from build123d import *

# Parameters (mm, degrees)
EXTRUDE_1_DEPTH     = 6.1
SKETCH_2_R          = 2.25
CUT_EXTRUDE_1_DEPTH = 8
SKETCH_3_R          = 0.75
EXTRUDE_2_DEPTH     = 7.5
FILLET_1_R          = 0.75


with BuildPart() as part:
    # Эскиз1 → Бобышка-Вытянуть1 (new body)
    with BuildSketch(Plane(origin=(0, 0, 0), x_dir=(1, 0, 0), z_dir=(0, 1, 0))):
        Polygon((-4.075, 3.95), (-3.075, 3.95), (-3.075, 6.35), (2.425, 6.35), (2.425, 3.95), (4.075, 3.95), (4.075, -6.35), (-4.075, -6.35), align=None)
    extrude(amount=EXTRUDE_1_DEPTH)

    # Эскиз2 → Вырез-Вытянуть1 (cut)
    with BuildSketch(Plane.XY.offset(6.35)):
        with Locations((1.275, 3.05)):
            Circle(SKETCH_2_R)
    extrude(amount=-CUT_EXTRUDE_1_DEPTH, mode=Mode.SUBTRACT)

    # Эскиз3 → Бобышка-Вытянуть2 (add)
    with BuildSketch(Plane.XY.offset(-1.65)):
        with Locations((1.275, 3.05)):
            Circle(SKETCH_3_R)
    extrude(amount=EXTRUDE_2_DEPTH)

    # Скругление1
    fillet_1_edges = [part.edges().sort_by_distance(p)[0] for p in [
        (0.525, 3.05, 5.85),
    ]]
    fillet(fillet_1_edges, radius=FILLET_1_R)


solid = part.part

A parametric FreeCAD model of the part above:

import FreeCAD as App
import Part
import Sketcher

V = App.Vector
Q = App.Units.Quantity


def edges_at(feature, points):
    """Names of the edges that pass closest to the given points."""
    edges = feature.Shape.Edges
    near = lambda p: min(range(len(edges)), key=lambda i: edges[i].distToShape(Part.Vertex(*p))[0])
    return sorted({f"Edge{near(p) + 1}" for p in points})

doc = App.newDocument("Part")
body = doc.addObject("PartDesign::Body", "Body")

# Sketch on XZ plane
sketch1 = body.newObject("Sketcher::SketchObject", "Sketch")
sketch1.AttachmentSupport = (doc.getObject("XZ_Plane"), [""])
sketch1.MapMode = "FlatFace"
sketch1.addGeometry(Part.LineSegment(V(-3.1, -4, 0), V(-4.1, -4, 0)), False)
sketch1.addGeometry(Part.LineSegment(V(-4.1, -4, 0), V(-4.1, 6.3, 0)), False)
sketch1.addGeometry(Part.LineSegment(V(-4.1, 6.3, 0), V(4.1, 6.3, 0)), False)
sketch1.addGeometry(Part.LineSegment(V(4.1, 6.3, 0), V(4.1, -4, 0)), False)
sketch1.addGeometry(Part.LineSegment(V(4.1, -4, 0), V(2.4, -4, 0)), False)
sketch1.addGeometry(Part.LineSegment(V(2.4, -4, 0), V(2.4, -6.3, 0)), False)
sketch1.addGeometry(Part.LineSegment(V(2.4, -6.3, 0), V(-3.1, -6.3, 0)), False)
sketch1.addGeometry(Part.LineSegment(V(-3.1, -6.3, 0), V(-3.1, -4, 0)), False)
sketch1.addConstraint(Sketcher.Constraint("Coincident", 0, 2, 1, 1))
sketch1.addConstraint(Sketcher.Constraint("Coincident", 1, 2, 2, 1))
sketch1.addConstraint(Sketcher.Constraint("Coincident", 2, 2, 3, 1))
sketch1.addConstraint(Sketcher.Constraint("Coincident", 3, 2, 4, 1))
sketch1.addConstraint(Sketcher.Constraint("Coincident", 4, 2, 5, 1))
sketch1.addConstraint(Sketcher.Constraint("Coincident", 5, 2, 6, 1))
sketch1.addConstraint(Sketcher.Constraint("Coincident", 6, 2, 7, 1))
sketch1.addConstraint(Sketcher.Constraint("Coincident", 7, 2, 0, 1))
sketch1.addConstraint(Sketcher.Constraint("Horizontal", 0))
sketch1.addConstraint(Sketcher.Constraint("Vertical", 1))
sketch1.addConstraint(Sketcher.Constraint("Horizontal", 2))
sketch1.addConstraint(Sketcher.Constraint("Vertical", 3))
sketch1.addConstraint(Sketcher.Constraint("Horizontal", 4))
sketch1.addConstraint(Sketcher.Constraint("Vertical", 5))
sketch1.addConstraint(Sketcher.Constraint("Horizontal", 6))
sketch1.addConstraint(Sketcher.Constraint("Vertical", 7))
sketch1.addConstraint(Sketcher.Constraint("Symmetric", 0, 2, 3, 2, -2))
sketch1.addConstraint(Sketcher.Constraint("DistanceX", 0, 2, 0, 1, Q("1 mm")))
sketch1.addConstraint(Sketcher.Constraint("DistanceX", 6, 2, 6, 1, Q("5.5 mm")))
sketch1.addConstraint(Sketcher.Constraint("DistanceY", 1, 1, 1, 2, Q("10.3 mm")))
sketch1.addConstraint(Sketcher.Constraint("DistanceY", 5, 2, 5, 1, Q("2.4 mm")))
sketch1.addConstraint(Sketcher.Constraint("DistanceX", 2, 1, 2, 2, Q("8.15 mm")))
sketch1.addConstraint(Sketcher.Constraint("DistanceY", 0, 2, -1, 1, Q("3.95 mm")))
pad1 = body.newObject("PartDesign::Pad", "Pad")
pad1.Profile = sketch1
pad1.Length = 6.1
pad1.Reversed = True

# Sketch on XY plane
sketch2 = body.newObject("Sketcher::SketchObject", "Sketch001")
sketch2.AttachmentSupport = (doc.getObject("XY_Plane"), [""])
sketch2.MapMode = "FlatFace"
sketch2.AttachmentOffset = App.Placement(V(0, 0, 6.35), App.Rotation())
sketch2.addGeometry(Part.Circle(V(1.3, 3, 0), V(0, 0, 1), 2.2), False)
sketch2.addConstraint(Sketcher.Constraint("Diameter", 0, Q("4.5 mm")))
sketch2.addConstraint(Sketcher.Constraint("DistanceY", -1, 1, 0, 3, Q("3.05 mm")))
sketch2.addConstraint(Sketcher.Constraint("DistanceX", -1, 1, 0, 3, Q("1.275 mm")))
pocket1 = body.newObject("PartDesign::Pocket", "Pocket")
pocket1.Profile = sketch2
pocket1.Length = 8

# Sketch on XY plane
sketch3 = body.newObject("Sketcher::SketchObject", "Sketch002")
sketch3.AttachmentSupport = (doc.getObject("XY_Plane"), [""])
sketch3.MapMode = "FlatFace"
sketch3.AttachmentOffset = App.Placement(V(0, 0, -1.65), App.Rotation())
sketch3.addGeometry(Part.Circle(V(1.3, 3, 0), V(0, 0, 1), 0.8), False)
sketch3.addConstraint(Sketcher.Constraint("Diameter", 0, Q("1.5 mm")))
sketch3.addConstraint(Sketcher.Constraint("DistanceY", -1, 1, 0, 3, Q("3.05 mm")))
sketch3.addConstraint(Sketcher.Constraint("DistanceX", -1, 1, 0, 3, Q("1.275 mm")))
pad2 = body.newObject("PartDesign::Pad", "Pad001")
pad2.Profile = sketch3
pad2.Length = 7.5
doc.recompute()

fillet = body.newObject("PartDesign::Fillet", "Fillet")
fillet.Base = (pad2, edges_at(pad2, [(0.525, 3.05, 5.85)]))
fillet.Radius = 0.75

doc.recompute()
